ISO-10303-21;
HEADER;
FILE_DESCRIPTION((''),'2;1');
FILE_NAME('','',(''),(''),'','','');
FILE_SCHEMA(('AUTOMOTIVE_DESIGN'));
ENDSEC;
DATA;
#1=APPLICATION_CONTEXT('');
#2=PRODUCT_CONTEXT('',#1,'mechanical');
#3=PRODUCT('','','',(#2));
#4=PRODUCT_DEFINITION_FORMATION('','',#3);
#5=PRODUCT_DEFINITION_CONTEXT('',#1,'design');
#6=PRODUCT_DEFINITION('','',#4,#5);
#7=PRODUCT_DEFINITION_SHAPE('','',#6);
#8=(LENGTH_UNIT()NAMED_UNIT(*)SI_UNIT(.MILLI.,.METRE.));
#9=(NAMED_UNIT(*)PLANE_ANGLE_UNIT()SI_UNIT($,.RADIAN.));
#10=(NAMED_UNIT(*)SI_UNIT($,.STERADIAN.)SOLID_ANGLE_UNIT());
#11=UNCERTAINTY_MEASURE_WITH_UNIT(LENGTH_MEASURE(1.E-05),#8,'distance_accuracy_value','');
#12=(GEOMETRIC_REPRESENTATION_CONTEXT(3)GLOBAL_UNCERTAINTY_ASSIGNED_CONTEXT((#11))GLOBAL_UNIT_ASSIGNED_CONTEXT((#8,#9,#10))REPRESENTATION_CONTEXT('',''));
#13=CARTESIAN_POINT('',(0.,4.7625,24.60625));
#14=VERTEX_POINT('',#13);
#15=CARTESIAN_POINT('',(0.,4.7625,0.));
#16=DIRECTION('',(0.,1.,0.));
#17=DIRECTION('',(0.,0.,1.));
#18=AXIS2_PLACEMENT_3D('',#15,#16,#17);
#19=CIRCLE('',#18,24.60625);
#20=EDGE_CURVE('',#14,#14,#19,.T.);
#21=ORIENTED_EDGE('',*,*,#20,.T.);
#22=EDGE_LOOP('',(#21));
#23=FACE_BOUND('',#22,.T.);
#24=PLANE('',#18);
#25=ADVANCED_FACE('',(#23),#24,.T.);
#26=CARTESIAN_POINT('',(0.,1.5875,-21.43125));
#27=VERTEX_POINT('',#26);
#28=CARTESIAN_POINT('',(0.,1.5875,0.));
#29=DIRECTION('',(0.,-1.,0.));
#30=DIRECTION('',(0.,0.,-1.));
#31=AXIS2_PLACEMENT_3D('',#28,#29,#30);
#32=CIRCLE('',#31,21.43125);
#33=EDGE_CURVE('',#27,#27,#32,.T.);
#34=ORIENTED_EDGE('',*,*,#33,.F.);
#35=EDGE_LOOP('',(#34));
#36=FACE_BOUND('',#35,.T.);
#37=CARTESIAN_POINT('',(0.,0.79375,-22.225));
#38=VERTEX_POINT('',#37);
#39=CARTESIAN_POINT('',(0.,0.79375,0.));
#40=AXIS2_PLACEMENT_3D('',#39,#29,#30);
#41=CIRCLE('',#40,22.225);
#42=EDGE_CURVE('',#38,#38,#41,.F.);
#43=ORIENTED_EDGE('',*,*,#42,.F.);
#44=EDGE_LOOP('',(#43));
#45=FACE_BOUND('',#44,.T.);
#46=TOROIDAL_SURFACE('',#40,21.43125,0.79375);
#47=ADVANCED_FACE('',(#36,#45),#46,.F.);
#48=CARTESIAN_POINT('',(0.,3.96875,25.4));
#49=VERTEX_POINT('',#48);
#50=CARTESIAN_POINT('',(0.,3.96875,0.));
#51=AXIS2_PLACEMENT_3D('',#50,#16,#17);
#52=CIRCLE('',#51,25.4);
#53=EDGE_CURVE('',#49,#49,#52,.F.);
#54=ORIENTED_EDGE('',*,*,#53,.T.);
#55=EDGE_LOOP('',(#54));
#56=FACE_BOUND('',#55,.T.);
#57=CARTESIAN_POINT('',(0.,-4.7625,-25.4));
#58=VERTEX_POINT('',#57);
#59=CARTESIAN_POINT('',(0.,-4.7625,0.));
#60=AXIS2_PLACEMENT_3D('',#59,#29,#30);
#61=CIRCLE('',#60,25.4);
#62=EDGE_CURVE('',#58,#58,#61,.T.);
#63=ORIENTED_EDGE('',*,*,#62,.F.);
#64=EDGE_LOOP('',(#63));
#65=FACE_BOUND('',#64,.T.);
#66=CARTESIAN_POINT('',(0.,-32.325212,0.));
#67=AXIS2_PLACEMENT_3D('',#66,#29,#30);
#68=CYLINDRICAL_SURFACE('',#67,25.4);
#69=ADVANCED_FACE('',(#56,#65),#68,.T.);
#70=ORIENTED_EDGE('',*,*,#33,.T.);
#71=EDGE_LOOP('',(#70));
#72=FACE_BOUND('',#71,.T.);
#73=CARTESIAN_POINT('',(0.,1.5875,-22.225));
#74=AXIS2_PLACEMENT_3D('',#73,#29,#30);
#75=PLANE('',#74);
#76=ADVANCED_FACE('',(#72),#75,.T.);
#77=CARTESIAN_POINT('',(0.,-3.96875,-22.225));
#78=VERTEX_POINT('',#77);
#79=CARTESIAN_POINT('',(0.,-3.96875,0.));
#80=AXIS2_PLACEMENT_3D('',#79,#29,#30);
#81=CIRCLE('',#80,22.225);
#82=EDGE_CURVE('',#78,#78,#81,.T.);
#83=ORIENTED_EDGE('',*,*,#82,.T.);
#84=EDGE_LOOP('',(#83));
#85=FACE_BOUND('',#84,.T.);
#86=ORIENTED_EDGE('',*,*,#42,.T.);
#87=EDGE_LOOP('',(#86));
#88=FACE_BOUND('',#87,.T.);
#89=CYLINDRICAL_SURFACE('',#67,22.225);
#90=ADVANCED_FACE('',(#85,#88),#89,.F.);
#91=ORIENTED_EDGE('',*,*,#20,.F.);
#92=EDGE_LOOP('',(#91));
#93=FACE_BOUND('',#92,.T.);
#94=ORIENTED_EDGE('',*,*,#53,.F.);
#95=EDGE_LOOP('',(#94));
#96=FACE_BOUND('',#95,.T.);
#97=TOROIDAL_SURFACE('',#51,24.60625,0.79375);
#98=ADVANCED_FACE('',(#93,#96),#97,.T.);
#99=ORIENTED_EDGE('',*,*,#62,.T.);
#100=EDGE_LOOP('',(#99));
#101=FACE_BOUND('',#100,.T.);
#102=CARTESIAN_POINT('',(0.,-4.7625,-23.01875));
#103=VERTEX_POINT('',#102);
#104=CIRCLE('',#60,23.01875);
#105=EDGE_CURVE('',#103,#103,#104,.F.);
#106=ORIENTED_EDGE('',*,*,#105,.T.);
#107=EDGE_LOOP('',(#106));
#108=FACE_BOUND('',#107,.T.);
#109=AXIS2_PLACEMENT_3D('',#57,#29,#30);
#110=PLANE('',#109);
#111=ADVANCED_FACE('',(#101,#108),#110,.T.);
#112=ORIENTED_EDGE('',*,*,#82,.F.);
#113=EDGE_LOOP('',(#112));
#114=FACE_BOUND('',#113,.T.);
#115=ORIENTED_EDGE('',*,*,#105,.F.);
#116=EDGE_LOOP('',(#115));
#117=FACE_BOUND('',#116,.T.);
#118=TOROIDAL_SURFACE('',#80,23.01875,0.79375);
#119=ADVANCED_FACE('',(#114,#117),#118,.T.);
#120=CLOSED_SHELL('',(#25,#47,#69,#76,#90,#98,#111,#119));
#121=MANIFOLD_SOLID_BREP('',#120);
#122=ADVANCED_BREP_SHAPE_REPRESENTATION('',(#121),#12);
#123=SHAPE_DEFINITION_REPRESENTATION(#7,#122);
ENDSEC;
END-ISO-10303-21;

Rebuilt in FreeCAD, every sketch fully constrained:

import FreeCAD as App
import Part
import Sketcher

V = App.Vector
Q = App.Units.Quantity


def edges_at(feature, points):
    """Names of the edges that pass closest to the given points."""
    edges = feature.Shape.Edges
    near = lambda p: min(range(len(edges)), key=lambda i: edges[i].distToShape(Part.Vertex(*p))[0])
    return sorted({f"Edge{near(p) + 1}" for p in points})


def add_polygon(sketch, points):
    """Adds a closed chain of lines whose ends are joined by coincident constraints."""
    first, n = sketch.GeometryCount, len(points)
    for a, b in zip(points, points[1:] + points[:1]):
        sketch.addGeometry(Part.LineSegment(App.Vector(*a, 0), App.Vector(*b, 0)), False)
    for i in range(n):
        sketch.addConstraint(Sketcher.Constraint("Coincident", first + i, 2, first + (i + 1) % n, 1))

doc = App.newDocument("Part")
body = doc.addObject("PartDesign::Body", "Body")

sketch1 = body.newObject("Sketcher::SketchObject", "Sketch")
sketch1.AttachmentSupport = (doc.getObject("YZ_Plane"), [""])
sketch1.MapMode = "FlatFace"
add_polygon(sketch1, [(4.7625, -25.4), (4.7625, 0), (1.5875, 0), (1.5875, -22.225), (-4.7625, -22.225), (-4.7625, -25.4)])
sketch1.addConstraint([
    Sketcher.Constraint("Vertical", 0),
    Sketcher.Constraint("Horizontal", 1),
    Sketcher.Constraint("Vertical", 2),
    Sketcher.Constraint("Horizontal", 3),
    Sketcher.Constraint("Vertical", 4),
    Sketcher.Constraint("Horizontal", 5),
    Sketcher.Constraint("PointOnObject", 0, 2, -1),
    Sketcher.Constraint("Equal", 1, 4),
    Sketcher.Constraint("DistanceY", 0, 1, 0, 2, Q("1 in")),
    Sketcher.Constraint("DistanceX", 3, 2, 3, 1, Q("0.25 in")),
    Sketcher.Constraint("DistanceX", 1, 2, 1, 1, Q("0.125 in")),
    Sketcher.Constraint("DistanceX", -1, 1, 0, 2, Q("0.1875 in")),
])
revolution = body.newObject("PartDesign::Revolution", "Revolution")
revolution.Profile = sketch1
revolution.ReferenceAxis = (sketch1, ["H_Axis"])
revolution.Angle = 360
doc.recompute()

fillet = body.newObject("PartDesign::Fillet", "Fillet")
fillet.Base = (revolution, edges_at(revolution, [(0, 1.587, 22.225), (0, -4.763, 22.225), (0, 4.763, 25.4)]))
fillet.Radius = Q("0.03125 in")

doc.recompute()
